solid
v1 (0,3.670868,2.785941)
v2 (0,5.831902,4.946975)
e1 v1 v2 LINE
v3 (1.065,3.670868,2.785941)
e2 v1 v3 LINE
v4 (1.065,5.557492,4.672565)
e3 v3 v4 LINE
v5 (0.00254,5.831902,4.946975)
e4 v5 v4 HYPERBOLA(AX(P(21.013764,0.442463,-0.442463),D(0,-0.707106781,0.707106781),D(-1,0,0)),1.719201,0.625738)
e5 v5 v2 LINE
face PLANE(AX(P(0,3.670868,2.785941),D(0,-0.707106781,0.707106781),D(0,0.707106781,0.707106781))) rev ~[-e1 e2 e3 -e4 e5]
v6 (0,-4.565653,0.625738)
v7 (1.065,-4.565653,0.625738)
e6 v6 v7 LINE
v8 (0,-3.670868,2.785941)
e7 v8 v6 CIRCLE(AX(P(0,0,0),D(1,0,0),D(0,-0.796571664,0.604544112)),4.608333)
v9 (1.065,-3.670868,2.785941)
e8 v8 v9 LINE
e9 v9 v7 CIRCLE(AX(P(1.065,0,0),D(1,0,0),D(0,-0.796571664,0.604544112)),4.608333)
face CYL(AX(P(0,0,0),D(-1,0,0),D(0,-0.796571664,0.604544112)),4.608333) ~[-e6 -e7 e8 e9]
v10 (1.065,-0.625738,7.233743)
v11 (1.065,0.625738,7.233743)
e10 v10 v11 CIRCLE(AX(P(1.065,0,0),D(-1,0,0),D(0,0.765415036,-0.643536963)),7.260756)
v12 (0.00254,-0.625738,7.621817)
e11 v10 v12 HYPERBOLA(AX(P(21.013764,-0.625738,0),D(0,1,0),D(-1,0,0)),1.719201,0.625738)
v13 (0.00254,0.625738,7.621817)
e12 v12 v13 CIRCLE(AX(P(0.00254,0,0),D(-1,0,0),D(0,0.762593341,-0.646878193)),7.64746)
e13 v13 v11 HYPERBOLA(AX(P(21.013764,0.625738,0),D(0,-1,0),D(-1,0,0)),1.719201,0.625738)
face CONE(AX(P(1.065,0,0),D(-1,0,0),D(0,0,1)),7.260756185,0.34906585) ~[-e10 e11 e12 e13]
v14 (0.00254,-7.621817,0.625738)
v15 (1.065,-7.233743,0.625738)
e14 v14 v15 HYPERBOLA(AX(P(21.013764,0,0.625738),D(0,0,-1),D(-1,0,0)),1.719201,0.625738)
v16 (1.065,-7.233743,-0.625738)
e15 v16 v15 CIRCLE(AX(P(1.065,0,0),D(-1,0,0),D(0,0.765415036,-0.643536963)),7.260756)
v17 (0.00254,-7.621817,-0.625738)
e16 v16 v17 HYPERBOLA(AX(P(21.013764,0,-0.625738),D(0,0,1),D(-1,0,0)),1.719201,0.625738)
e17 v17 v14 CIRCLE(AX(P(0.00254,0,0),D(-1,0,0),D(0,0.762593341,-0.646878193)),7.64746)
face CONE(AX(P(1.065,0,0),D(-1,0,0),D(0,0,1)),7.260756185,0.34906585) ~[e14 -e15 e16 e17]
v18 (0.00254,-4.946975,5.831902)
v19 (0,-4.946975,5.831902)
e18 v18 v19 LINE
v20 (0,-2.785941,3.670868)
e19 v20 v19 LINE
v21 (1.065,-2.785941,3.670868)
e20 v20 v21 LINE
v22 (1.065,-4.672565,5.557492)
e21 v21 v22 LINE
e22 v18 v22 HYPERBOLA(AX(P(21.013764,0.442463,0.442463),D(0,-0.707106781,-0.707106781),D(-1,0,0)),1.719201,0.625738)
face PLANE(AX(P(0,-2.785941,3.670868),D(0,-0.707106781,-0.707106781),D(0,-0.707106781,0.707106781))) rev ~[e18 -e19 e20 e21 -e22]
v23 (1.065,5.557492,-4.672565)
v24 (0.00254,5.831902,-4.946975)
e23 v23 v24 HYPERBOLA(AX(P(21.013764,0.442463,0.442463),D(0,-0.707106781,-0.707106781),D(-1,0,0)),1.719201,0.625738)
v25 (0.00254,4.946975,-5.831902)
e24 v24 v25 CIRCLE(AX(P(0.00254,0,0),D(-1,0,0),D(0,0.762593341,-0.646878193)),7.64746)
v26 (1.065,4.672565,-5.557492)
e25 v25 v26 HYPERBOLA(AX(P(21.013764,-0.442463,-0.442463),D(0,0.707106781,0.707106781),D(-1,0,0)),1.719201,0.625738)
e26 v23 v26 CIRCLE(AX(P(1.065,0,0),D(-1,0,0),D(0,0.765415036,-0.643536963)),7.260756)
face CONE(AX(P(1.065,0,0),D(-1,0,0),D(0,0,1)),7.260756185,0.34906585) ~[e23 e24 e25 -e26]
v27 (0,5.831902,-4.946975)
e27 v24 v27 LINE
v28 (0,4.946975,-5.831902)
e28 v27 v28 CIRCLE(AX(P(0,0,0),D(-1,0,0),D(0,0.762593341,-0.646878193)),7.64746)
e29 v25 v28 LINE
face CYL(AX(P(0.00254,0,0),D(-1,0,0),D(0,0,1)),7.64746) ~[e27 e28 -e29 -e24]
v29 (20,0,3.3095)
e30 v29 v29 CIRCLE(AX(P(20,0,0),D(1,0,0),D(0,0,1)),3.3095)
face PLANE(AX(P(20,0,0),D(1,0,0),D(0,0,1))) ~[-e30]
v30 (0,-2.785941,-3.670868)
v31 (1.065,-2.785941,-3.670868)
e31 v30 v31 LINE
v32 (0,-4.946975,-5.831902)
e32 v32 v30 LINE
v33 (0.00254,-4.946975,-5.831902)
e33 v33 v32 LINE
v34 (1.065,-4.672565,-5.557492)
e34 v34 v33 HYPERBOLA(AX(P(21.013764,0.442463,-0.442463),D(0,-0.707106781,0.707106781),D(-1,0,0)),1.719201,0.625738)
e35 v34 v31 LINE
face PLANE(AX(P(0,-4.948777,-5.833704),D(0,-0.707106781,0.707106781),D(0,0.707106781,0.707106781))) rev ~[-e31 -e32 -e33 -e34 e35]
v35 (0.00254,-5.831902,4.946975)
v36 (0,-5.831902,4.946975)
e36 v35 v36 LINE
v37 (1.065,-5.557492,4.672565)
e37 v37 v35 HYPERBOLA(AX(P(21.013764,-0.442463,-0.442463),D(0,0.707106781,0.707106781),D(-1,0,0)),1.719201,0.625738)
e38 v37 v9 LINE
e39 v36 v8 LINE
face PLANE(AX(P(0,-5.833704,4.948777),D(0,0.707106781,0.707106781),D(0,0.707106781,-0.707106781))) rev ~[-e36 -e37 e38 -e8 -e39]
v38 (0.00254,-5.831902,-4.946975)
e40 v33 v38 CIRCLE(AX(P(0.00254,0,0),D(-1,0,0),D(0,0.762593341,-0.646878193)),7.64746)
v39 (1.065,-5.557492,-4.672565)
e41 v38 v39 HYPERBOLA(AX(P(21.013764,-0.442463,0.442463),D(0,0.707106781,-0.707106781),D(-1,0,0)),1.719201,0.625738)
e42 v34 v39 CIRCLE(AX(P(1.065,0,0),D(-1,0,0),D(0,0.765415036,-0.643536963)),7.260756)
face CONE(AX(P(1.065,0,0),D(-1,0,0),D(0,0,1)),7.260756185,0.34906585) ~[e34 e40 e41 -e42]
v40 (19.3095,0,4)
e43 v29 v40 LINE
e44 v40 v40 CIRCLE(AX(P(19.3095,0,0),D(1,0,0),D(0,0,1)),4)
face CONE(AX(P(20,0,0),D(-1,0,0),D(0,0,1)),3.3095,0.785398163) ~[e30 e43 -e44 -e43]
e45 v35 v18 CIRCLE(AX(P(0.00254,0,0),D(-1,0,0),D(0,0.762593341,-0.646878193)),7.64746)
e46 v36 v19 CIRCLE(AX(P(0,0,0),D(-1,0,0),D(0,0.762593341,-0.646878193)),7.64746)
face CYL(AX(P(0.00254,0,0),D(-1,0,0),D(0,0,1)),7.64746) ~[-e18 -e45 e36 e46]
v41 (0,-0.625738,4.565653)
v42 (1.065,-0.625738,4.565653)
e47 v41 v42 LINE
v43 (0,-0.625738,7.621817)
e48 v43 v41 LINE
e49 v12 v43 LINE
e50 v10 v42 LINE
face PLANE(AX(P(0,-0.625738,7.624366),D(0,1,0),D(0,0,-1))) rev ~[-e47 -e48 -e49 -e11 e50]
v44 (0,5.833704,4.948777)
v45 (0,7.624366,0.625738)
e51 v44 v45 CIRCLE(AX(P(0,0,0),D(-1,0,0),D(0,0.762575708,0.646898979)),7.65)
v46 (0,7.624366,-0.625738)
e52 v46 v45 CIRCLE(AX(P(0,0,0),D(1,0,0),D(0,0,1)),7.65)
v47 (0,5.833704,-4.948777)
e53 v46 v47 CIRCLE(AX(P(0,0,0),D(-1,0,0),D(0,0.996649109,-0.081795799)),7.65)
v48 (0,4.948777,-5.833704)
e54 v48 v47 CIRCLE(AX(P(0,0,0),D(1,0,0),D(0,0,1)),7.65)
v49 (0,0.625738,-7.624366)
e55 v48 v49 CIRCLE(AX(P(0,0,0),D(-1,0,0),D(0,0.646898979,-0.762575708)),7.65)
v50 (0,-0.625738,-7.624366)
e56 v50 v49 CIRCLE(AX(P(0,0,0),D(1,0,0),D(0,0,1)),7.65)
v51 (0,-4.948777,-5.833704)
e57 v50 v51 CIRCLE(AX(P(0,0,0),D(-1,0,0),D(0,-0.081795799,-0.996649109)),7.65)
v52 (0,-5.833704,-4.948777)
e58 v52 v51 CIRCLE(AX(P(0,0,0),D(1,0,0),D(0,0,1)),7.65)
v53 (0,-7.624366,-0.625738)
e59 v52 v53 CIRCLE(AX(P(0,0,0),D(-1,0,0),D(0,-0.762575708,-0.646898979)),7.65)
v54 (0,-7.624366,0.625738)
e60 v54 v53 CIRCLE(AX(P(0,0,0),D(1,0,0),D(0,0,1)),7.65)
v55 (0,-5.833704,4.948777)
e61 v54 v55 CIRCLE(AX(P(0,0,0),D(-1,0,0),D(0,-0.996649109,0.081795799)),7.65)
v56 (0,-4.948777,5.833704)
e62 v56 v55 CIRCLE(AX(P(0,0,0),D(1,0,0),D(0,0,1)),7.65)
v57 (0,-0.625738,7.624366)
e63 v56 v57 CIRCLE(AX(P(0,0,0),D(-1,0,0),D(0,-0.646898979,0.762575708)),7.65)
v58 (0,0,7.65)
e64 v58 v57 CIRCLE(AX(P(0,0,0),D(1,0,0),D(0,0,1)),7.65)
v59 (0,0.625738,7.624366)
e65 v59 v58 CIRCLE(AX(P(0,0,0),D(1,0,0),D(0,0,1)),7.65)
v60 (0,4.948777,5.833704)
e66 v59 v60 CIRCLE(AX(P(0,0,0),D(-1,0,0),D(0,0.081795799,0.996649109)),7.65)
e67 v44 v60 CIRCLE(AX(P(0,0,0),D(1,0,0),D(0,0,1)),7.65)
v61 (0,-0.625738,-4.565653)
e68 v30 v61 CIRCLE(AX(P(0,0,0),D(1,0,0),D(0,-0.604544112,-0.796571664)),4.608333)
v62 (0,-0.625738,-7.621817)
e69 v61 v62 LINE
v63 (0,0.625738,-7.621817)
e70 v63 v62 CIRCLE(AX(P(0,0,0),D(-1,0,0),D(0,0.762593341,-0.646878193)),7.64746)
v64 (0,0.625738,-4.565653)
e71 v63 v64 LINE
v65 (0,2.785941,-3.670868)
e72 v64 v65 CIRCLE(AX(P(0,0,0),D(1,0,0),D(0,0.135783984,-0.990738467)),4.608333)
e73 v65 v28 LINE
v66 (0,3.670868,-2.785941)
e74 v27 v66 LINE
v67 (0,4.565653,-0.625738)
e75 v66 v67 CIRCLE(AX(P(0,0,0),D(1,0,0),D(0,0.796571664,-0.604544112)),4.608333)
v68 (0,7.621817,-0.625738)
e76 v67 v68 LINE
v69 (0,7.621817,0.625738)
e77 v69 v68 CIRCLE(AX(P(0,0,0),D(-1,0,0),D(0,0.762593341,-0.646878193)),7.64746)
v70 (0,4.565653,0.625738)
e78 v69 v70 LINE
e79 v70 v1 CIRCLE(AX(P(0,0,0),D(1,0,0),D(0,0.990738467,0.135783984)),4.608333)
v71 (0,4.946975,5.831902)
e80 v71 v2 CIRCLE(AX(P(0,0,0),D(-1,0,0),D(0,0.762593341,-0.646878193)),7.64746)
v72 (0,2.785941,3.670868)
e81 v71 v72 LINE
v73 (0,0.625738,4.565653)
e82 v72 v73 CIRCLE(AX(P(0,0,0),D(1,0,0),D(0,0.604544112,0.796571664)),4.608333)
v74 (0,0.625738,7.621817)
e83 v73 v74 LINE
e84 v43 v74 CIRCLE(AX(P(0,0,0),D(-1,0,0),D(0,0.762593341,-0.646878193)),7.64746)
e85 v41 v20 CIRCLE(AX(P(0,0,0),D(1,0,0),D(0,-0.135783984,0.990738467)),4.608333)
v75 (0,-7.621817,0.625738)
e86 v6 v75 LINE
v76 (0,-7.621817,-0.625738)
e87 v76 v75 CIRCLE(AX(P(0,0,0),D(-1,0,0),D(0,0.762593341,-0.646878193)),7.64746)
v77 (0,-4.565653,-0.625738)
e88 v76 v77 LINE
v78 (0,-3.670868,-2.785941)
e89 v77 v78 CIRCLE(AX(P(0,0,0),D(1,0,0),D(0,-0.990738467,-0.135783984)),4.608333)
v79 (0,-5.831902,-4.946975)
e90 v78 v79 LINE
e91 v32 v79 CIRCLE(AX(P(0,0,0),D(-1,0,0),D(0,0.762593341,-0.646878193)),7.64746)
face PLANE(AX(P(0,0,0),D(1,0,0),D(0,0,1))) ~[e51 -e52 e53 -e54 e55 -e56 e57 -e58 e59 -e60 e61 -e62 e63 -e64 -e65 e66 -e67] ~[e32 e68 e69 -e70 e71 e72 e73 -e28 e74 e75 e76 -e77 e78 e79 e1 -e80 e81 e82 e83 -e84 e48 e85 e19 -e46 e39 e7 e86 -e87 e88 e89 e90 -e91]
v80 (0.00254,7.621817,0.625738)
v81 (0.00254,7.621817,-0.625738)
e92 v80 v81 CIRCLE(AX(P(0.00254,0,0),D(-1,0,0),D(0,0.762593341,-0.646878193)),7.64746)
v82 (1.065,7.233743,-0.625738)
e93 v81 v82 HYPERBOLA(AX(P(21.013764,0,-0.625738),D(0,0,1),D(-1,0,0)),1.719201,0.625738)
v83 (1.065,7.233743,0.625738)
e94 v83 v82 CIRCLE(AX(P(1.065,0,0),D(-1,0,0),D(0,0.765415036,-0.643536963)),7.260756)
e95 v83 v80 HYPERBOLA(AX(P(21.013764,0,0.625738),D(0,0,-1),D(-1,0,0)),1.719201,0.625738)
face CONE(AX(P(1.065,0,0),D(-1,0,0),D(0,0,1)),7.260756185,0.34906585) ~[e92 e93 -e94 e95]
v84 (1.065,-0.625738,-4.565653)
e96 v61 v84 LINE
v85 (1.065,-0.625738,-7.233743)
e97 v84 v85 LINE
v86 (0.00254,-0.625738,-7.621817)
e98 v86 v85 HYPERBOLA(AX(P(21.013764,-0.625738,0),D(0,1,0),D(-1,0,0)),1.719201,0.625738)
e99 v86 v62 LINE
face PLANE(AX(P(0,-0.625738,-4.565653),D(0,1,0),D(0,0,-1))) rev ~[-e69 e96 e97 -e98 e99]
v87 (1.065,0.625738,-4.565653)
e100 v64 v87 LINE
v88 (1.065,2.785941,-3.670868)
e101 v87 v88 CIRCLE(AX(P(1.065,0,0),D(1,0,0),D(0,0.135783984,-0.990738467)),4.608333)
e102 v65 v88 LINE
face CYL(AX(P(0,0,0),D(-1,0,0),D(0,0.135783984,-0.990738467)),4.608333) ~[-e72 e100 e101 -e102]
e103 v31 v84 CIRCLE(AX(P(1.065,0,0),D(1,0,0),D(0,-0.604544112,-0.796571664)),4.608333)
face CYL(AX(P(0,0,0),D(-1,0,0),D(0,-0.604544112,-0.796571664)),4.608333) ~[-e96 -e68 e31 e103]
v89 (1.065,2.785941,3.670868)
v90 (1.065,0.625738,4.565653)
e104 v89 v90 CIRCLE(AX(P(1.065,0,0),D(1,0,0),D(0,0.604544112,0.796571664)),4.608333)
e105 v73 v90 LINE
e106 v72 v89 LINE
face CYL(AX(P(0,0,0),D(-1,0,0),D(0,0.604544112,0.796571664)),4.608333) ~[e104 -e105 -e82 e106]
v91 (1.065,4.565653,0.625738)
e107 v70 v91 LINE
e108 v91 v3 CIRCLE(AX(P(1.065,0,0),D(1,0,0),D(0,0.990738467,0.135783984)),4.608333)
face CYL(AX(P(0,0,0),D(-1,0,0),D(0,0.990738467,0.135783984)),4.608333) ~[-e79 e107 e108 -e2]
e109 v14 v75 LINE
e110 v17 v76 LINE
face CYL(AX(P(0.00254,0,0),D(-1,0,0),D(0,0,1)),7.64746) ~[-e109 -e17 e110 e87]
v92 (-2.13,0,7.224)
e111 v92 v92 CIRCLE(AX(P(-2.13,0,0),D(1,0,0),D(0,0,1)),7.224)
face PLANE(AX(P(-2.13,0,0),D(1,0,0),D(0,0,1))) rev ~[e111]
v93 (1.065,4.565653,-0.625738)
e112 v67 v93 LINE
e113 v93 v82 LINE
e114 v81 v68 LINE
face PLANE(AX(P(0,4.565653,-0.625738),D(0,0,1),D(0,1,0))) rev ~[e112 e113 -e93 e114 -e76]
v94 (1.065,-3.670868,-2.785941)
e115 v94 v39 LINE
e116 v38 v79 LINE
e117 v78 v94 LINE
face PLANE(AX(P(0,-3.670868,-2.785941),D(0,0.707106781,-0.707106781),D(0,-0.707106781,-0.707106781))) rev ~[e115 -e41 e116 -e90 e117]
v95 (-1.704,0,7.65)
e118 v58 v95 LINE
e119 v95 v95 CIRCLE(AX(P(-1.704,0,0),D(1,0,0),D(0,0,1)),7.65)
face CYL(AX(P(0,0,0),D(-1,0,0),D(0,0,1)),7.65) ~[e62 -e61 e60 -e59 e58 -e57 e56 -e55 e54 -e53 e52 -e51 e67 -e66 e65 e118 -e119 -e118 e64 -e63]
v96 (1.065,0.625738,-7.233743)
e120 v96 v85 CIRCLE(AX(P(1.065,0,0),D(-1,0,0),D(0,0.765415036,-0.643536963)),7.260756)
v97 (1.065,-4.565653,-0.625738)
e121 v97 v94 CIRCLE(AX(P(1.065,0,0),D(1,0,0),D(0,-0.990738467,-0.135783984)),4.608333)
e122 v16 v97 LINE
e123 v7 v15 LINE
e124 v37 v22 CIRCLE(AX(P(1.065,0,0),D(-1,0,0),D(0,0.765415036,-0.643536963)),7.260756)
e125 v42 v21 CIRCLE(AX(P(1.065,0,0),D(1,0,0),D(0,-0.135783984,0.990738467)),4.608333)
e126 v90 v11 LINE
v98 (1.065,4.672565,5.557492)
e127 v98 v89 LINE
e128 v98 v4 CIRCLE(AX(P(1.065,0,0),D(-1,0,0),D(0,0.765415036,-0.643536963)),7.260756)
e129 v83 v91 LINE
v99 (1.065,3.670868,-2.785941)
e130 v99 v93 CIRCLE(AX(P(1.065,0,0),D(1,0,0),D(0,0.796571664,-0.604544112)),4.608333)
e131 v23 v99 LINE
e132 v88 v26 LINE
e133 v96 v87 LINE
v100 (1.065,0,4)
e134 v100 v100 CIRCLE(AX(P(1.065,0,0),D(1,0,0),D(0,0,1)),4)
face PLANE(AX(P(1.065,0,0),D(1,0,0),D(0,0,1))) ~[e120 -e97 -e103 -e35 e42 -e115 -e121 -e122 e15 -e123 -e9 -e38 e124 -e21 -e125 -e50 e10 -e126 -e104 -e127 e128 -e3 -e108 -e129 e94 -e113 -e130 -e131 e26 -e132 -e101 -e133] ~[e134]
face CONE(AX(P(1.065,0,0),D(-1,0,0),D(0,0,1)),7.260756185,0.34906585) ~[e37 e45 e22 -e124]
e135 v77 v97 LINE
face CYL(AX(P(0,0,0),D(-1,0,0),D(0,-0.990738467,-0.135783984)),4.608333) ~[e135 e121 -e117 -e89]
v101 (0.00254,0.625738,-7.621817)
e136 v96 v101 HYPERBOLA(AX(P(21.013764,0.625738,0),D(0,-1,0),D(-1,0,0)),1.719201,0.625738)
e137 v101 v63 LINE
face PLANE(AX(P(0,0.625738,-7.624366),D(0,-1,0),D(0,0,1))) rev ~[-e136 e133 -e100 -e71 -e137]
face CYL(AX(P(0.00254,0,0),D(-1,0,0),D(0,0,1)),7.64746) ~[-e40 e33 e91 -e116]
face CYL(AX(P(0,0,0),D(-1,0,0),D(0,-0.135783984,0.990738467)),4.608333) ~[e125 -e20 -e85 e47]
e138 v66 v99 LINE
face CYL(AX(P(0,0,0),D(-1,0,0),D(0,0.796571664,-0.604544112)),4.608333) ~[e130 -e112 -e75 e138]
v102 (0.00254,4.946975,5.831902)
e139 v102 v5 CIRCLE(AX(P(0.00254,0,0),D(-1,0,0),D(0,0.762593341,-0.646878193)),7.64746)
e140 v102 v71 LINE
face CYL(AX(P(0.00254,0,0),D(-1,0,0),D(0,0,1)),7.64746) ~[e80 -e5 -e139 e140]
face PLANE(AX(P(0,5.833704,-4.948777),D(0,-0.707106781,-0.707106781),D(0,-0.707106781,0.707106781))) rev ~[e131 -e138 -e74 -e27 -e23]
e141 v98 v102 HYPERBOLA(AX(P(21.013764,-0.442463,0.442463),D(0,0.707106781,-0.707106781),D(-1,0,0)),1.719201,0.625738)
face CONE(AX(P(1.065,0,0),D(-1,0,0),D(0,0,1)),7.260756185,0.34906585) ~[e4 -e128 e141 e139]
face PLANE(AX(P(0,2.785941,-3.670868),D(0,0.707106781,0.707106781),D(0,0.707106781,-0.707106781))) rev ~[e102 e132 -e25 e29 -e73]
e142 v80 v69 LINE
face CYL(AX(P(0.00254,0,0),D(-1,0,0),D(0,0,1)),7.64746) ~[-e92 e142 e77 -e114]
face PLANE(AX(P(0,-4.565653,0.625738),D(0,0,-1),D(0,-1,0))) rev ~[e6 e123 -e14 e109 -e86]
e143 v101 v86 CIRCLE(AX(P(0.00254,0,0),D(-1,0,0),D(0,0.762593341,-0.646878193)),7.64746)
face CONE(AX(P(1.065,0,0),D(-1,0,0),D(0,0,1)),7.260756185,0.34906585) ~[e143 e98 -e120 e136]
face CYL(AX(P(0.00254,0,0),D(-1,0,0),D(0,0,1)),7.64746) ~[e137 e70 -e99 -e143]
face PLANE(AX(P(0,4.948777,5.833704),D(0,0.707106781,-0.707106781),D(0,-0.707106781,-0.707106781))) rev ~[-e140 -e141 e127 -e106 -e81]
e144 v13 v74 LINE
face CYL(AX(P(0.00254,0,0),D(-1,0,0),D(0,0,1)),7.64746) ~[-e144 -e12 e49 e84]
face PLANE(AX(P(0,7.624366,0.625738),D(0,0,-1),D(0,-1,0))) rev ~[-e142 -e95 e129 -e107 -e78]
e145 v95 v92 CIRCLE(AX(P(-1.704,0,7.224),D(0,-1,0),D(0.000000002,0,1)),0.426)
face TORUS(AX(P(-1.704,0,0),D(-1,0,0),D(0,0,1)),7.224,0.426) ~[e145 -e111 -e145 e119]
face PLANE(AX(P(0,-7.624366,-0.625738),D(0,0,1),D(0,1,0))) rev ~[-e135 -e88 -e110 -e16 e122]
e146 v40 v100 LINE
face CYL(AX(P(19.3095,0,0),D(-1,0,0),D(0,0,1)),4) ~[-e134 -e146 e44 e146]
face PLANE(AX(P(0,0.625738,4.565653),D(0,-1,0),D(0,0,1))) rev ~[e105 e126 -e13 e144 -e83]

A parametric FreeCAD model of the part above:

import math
import FreeCAD as App
import Part
import Sketcher
Q = App.Units.Quantity

doc = App.newDocument("Part")
body = doc.addObject("PartDesign::Body", "Body")

# Sketch on XY plane
sketch1 = body.newObject("Sketcher::SketchObject", "Sketch")
sketch1.AttachmentSupport = (doc.getObject("XY_Plane"), [""])
sketch1.MapMode = "FlatFace"
sketch1.addGeometry([
    Part.LineSegment(App.Vector(-2.13, 7.224, 0), App.Vector(-2.13, 0, 0)),  # 0
    Part.LineSegment(App.Vector(-2.13, 0, 0), App.Vector(20, 0, 0)),  # 1
    Part.LineSegment(App.Vector(20, 0, 0), App.Vector(20, 3.3095, 0)),  # 2
    Part.LineSegment(App.Vector(20, 3.3095, 0), App.Vector(19.3095, 4, 0)),  # 3
    Part.LineSegment(App.Vector(19.3095, 4, 0), App.Vector(1.065, 4, 0)),  # 4
    Part.LineSegment(App.Vector(1.065, 4, 0), App.Vector(1.065, 7.2608, 0)),  # 5
    Part.LineSegment(App.Vector(1.065, 7.2608, 0), App.Vector(0.0025, 7.6475, 0)),  # 6
    Part.LineSegment(App.Vector(0.0025, 7.6475, 0), App.Vector(0, 7.6475, 0)),  # 7
    Part.LineSegment(App.Vector(0, 7.6475, 0), App.Vector(0, 7.65, 0)),  # 8
    Part.LineSegment(App.Vector(0, 7.65, 0), App.Vector(-1.704, 7.65, 0)),  # 9
    Part.ArcOfCircle(Part.Circle(App.Vector(-1.704, 7.224, 0), App.Vector(0, 0, 1), 0.426), math.radians(90), math.radians(180)),  # 10
], False)
sketch1.addConstraint([
    Sketcher.Constraint("Coincident", 0, 2, 1, 1),
    Sketcher.Constraint("Coincident", 1, 2, 2, 1),
    Sketcher.Constraint("Coincident", 2, 2, 3, 1),
    Sketcher.Constraint("Coincident", 3, 2, 4, 1),
    Sketcher.Constraint("Coincident", 4, 2, 5, 1),
    Sketcher.Constraint("Coincident", 5, 2, 6, 1),
    Sketcher.Constraint("Coincident", 6, 2, 7, 1),
    Sketcher.Constraint("Coincident", 7, 2, 8, 1),
    Sketcher.Constraint("Coincident", 8, 2, 9, 1),
    Sketcher.Constraint("Tangent", 9, 2, 10, 1),
    Sketcher.Constraint("Tangent", 10, 2, 0, 1),
    Sketcher.Constraint("Vertical", 0),
    Sketcher.Constraint("Horizontal", 1),
    Sketcher.Constraint("Vertical", 2),
    Sketcher.Constraint("Horizontal", 4),
    Sketcher.Constraint("Vertical", 5),
    Sketcher.Constraint("Horizontal", 7),
    Sketcher.Constraint("Vertical", 8),
    Sketcher.Constraint("Horizontal", 9),
    Sketcher.Constraint("PointOnObject", 0, 2, -1),
    Sketcher.Constraint("PointOnObject", 7, 2, -2),
    Sketcher.Constraint("Equal", 7, 8),
    Sketcher.Constraint("Angle", 3, Q("135 deg")),
    Sketcher.Constraint("Angle", 6, Q("160 deg")),
    Sketcher.Constraint("DistanceX", -1, 1, 1, 2, 20.0),
    Sketcher.Constraint("DistanceY", -1, 1, 3, 2, 4.0),
    Sketcher.Constraint("Radius", 10, 0.426),
    Sketcher.Constraint("DistanceX", 1, 1, 1, 2, 22.13),
    Sketcher.Constraint("DistanceY", 0, 2, 0, 1, 7.224),
    Sketcher.Constraint("DistanceX", 4, 2, 4, 1, 18.2445),
    Sketcher.Constraint("DistanceY", 2, 1, 2, 2, 3.3095),
    Sketcher.Constraint("DistanceX", 7, 2, 7, 1, 0.00254),
])
revolution = body.newObject("PartDesign::Revolution", "Revolution")
revolution.Profile = sketch1
revolution.ReferenceAxis = (sketch1, ["H_Axis"])
revolution.Angle = 360

# Sketch on YZ plane
sketch2 = body.newObject("Sketcher::SketchObject", "Sketch001")
sketch2.AttachmentSupport = (doc.getObject("YZ_Plane"), [""])
sketch2.MapMode = "FlatFace"
sketch2.addGeometry([
    Part.LineSegment(App.Vector(7.6, -0.6, 0), App.Vector(4.6, -0.6, 0)),
    Part.ArcOfCircle(Part.Circle(App.Vector(0, 0, 0), App.Vector(0, 0, 1), 4.6), math.radians(-37), math.radians(-8)),
    Part.LineSegment(App.Vector(3.7, -2.8, 0), App.Vector(5.8, -4.9, 0)),
    Part.ArcOfCircle(Part.Circle(App.Vector(0, 0, 0), App.Vector(0, 0, 1), 7.7), math.radians(-40), math.radians(-5)),
], False)
sketch2.addConstraint([
    Sketcher.Constraint("Coincident", 0, 2, 1, 2),
    Sketcher.Constraint("Coincident", 1, 1, 2, 1),
    Sketcher.Constraint("Coincident", 2, 2, 3, 1),
    Sketcher.Constraint("Coincident", 3, 2, 0, 1),
    Sketcher.Constraint("Horizontal", 0),
    Sketcher.Constraint("Coincident", 1, 3, -1, 1),
    Sketcher.Constraint("Coincident", 3, 3, -1, 1),
    Sketcher.Constraint("Angle", 2, Q("-45 deg")),
    Sketcher.Constraint("Radius", 3, 7.65),
    Sketcher.Constraint("Radius", 1, 4.608333),
    Sketcher.Constraint("DistanceX", 0, 2, 0, 1, 3.058713),
    Sketcher.Constraint("DistanceY", 1, 1, -1, 1, 2.785941),
])
pocket1 = body.newObject("PartDesign::Pocket", "Pocket")
pocket1.Profile = sketch2
pocket1.Length = 1.065
pocket1.Reversed = True
doc.recompute()

polarpattern = body.newObject("PartDesign::PolarPattern", "PolarPattern")
polarpattern.Originals = [pocket1]
polarpattern.Axis = (doc.getObject("X_Axis"), [""])
polarpattern.Angle = 360
polarpattern.Occurrences = 8
body.Tip = polarpattern

doc.recompute()
